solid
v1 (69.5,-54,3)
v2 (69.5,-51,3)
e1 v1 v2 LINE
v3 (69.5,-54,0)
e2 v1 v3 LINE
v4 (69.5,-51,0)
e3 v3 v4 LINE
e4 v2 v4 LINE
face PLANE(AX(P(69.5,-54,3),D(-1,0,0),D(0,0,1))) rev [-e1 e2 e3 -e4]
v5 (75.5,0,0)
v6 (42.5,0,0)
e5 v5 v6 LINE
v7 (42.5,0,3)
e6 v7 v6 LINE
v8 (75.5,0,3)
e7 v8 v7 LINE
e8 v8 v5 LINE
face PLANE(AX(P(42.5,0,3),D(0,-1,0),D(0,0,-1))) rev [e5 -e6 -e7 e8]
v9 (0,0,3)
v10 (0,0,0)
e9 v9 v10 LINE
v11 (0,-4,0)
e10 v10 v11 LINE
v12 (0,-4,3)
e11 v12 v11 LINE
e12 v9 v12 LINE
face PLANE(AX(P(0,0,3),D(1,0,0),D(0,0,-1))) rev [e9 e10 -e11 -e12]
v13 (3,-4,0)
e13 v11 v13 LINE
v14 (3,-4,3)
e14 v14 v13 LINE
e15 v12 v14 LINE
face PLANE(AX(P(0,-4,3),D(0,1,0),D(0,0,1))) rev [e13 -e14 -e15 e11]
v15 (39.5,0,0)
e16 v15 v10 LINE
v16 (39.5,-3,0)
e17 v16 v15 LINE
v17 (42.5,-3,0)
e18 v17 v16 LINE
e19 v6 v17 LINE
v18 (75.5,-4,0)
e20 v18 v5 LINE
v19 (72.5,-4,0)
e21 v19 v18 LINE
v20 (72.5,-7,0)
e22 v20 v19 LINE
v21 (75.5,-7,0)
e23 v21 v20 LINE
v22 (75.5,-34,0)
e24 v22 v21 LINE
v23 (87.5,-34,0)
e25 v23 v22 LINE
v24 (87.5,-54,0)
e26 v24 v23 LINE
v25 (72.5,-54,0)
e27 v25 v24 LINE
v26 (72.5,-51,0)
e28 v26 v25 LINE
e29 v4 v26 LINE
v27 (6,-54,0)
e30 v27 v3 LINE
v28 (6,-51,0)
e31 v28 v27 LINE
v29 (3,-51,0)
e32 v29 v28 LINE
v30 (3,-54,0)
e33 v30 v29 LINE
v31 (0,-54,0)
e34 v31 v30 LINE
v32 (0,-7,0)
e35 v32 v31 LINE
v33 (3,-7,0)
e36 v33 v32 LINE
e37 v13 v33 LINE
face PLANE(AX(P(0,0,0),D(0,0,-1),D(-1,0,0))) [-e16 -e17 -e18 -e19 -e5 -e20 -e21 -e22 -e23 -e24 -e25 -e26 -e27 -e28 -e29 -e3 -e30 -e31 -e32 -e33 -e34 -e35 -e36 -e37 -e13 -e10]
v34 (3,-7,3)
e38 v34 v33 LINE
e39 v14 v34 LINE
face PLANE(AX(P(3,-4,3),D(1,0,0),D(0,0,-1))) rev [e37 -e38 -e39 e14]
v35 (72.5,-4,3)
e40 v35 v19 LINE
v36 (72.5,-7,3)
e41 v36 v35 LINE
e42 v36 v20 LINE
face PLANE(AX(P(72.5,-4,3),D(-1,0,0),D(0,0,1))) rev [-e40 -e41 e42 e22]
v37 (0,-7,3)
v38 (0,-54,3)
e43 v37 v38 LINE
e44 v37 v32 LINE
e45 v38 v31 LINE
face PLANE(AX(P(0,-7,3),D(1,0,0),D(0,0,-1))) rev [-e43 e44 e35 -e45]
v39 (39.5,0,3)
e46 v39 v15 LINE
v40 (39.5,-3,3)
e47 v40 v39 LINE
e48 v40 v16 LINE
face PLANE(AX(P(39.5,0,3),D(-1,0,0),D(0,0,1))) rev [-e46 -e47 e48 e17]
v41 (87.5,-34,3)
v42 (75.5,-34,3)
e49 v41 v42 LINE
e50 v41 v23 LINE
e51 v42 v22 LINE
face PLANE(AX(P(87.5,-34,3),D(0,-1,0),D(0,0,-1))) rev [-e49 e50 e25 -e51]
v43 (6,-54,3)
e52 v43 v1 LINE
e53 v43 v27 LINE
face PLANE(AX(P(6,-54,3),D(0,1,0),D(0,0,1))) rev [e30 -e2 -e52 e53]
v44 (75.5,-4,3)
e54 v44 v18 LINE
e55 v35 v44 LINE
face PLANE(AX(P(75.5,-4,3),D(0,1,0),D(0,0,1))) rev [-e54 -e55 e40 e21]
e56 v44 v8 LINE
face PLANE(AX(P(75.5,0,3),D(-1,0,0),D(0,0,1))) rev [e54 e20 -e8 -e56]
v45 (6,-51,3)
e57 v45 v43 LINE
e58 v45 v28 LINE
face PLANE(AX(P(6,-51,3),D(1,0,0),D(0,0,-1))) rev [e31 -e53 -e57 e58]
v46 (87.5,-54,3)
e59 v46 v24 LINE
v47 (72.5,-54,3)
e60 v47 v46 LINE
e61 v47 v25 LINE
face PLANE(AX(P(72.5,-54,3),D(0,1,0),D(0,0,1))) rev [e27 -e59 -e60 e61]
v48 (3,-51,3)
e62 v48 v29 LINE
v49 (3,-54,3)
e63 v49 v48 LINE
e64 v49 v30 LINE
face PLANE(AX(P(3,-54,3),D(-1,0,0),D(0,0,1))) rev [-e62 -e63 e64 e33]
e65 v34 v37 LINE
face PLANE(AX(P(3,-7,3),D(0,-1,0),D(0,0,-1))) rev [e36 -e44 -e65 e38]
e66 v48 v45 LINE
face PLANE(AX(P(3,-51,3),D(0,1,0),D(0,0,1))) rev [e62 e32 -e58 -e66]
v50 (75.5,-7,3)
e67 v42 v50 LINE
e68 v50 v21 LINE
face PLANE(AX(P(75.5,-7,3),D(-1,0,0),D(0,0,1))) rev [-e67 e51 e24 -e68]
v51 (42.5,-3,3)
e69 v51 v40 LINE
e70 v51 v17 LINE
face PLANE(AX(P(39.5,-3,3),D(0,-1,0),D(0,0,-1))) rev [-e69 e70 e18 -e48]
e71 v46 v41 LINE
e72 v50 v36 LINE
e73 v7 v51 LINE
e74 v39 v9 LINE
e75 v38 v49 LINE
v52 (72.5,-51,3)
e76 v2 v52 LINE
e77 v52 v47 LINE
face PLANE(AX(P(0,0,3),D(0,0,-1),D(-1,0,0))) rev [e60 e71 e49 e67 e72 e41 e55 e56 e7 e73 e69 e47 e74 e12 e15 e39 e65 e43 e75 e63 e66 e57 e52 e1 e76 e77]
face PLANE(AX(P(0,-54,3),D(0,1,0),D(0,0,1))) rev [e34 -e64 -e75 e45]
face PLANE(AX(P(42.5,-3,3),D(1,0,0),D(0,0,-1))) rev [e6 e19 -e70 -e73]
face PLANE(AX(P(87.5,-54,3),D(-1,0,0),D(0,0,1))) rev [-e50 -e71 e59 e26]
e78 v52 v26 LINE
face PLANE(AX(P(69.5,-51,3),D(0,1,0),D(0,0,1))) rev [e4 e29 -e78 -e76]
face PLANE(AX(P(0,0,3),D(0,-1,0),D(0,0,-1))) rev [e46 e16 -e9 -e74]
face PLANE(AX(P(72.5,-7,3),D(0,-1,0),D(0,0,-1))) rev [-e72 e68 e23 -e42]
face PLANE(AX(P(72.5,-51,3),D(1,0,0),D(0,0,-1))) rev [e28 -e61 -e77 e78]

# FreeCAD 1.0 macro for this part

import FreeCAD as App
import Part
import Sketcher


def add_polygon(sketch, points):
    """Adds a closed chain of lines whose ends are joined by coincident constraints."""
    first, n = sketch.GeometryCount, len(points)
    for a, b in zip(points, points[1:] + points[:1]):
        sketch.addGeometry(Part.LineSegment(App.Vector(*a, 0), App.Vector(*b, 0)), False)
    for i in range(n):
        sketch.addConstraint(Sketcher.Constraint("Coincident", first + i, 2, first + (i + 1) % n, 1))

doc = App.newDocument("Part")
params = doc.addObject("Spreadsheet::Sheet", "Params")
for row, (alias, value) in enumerate([
    ("sketch1_width", "3 mm"),
    ("sketch1_width2", "15 mm"),
    ("sketch1_width3", "33 mm"),
    ("sketch1_height", "4 mm"),
    ("sketch1_height2", "47 mm"),
    ("pad1_length", "3 mm"),
], start=1):
    params.set(f"A{row}", alias)
    params.set(f"B{row}", "=" + value)
    params.setAlias(f"B{row}", alias)

body = doc.addObject("PartDesign::Body", "Body")

# Sketch on XY plane
sketch1 = body.newObject("Sketcher::SketchObject", "Sketch")
sketch1.AttachmentSupport = (doc.getObject("XY_Plane"), [""])
sketch1.MapMode = "FlatFace"
add_polygon(sketch1, [(0, 0), (0, -4), (3, -4), (3, -7), (0, -7), (0, -54), (3, -54), (3, -51), (6, -51), (6, -54), (69.5, -54), (69.5, -51), (72.5, -51), (72.5, -54), (87.5, -54), (87.5, -34), (75.5, -34), (75.5, -7), (72.5, -7), (72.5, -4), (75.5, -4), (75.5, 0), (42.5, 0), (42.5, -3), (39.5, -3), (39.5, 0)])  # lines 0-25
sketch1.addConstraint([
    Sketcher.Constraint("Vertical", 0),
    Sketcher.Constraint("Horizontal", 1),
    Sketcher.Constraint("Vertical", 2),
    Sketcher.Constraint("Horizontal", 3),
    Sketcher.Constraint("Vertical", 4),
    Sketcher.Constraint("Horizontal", 5),
    Sketcher.Constraint("Vertical", 6),
    Sketcher.Constraint("Horizontal", 7),
    Sketcher.Constraint("Vertical", 8),
    Sketcher.Constraint("Horizontal", 9),
    Sketcher.Constraint("Vertical", 10),
    Sketcher.Constraint("Horizontal", 11),
    Sketcher.Constraint("Vertical", 12),
    Sketcher.Constraint("Horizontal", 13),
    Sketcher.Constraint("Vertical", 14),
    Sketcher.Constraint("Horizontal", 15),
    Sketcher.Constraint("Vertical", 16),
    Sketcher.Constraint("Horizontal", 17),
    Sketcher.Constraint("Vertical", 18),
    Sketcher.Constraint("Horizontal", 19),
    Sketcher.Constraint("Vertical", 20),
    Sketcher.Constraint("Horizontal", 21),
    Sketcher.Constraint("Vertical", 22),
    Sketcher.Constraint("Horizontal", 23),
    Sketcher.Constraint("Vertical", 24),
    Sketcher.Constraint("Horizontal", 25),
    Sketcher.Constraint("Coincident", 25, 2, -1, 1),
    Sketcher.Constraint("PointOnObject", 3, 2, -2),
    Sketcher.Constraint("PointOnObject", 20, 2, -1),
    Sketcher.Constraint("Horizontal", 5, 2, 8, 2),
    Sketcher.Constraint("Horizontal", 7, 2, 10, 2),
    Sketcher.Constraint("Horizontal", 9, 2, 12, 2),
    Sketcher.Constraint("Horizontal", 3, 2, 16, 2),
    Sketcher.Constraint("Horizontal", 1, 2, 18, 2),
    Sketcher.Constraint("Vertical", 2, 2, 5, 2),
    Sketcher.Constraint("Vertical", 12, 2, 17, 2),
    Sketcher.Constraint("Vertical", 16, 2, 19, 2),
    Sketcher.Constraint("Equal", 5, 7),
    Sketcher.Constraint("Equal", 7, 11),
    Sketcher.Constraint("Equal", 11, 17),
    Sketcher.Constraint("Equal", 19, 23),
    Sketcher.Constraint("Equal", 23, 2),
    Sketcher.Constraint("Equal", 2, 6),
    Sketcher.Constraint("Equal", 18, 22),
    Sketcher.Constraint("DistanceX", 1, 1, 1, 2, 3.0),
    Sketcher.Constraint("DistanceX", 13, 1, 13, 2, 15.0),
    Sketcher.Constraint("DistanceX", 21, 2, 21, 1, 33.0),
    Sketcher.Constraint("DistanceY", 0, 2, 0, 1, 4.0),
    Sketcher.Constraint("DistanceY", 4, 2, 4, 1, 47.0),
    Sketcher.Constraint("DistanceY", 14, 1, 14, 2, 20.0),
    Sketcher.Constraint("DistanceX", 9, 1, 9, 2, 63.5),
])
sketch1.setExpression("Constraints[70]", "Params.sketch1_width")
sketch1.setExpression("Constraints[71]", "Params.sketch1_width2")
sketch1.setExpression("Constraints[72]", "Params.sketch1_width3")
sketch1.setExpression("Constraints[73]", "Params.sketch1_height")
sketch1.setExpression("Constraints[74]", "Params.sketch1_height2")
pad1 = body.newObject("PartDesign::Pad", "Pad")
pad1.Profile = sketch1
pad1.setExpression("Length", "Params.pad1_length")

doc.recompute()
